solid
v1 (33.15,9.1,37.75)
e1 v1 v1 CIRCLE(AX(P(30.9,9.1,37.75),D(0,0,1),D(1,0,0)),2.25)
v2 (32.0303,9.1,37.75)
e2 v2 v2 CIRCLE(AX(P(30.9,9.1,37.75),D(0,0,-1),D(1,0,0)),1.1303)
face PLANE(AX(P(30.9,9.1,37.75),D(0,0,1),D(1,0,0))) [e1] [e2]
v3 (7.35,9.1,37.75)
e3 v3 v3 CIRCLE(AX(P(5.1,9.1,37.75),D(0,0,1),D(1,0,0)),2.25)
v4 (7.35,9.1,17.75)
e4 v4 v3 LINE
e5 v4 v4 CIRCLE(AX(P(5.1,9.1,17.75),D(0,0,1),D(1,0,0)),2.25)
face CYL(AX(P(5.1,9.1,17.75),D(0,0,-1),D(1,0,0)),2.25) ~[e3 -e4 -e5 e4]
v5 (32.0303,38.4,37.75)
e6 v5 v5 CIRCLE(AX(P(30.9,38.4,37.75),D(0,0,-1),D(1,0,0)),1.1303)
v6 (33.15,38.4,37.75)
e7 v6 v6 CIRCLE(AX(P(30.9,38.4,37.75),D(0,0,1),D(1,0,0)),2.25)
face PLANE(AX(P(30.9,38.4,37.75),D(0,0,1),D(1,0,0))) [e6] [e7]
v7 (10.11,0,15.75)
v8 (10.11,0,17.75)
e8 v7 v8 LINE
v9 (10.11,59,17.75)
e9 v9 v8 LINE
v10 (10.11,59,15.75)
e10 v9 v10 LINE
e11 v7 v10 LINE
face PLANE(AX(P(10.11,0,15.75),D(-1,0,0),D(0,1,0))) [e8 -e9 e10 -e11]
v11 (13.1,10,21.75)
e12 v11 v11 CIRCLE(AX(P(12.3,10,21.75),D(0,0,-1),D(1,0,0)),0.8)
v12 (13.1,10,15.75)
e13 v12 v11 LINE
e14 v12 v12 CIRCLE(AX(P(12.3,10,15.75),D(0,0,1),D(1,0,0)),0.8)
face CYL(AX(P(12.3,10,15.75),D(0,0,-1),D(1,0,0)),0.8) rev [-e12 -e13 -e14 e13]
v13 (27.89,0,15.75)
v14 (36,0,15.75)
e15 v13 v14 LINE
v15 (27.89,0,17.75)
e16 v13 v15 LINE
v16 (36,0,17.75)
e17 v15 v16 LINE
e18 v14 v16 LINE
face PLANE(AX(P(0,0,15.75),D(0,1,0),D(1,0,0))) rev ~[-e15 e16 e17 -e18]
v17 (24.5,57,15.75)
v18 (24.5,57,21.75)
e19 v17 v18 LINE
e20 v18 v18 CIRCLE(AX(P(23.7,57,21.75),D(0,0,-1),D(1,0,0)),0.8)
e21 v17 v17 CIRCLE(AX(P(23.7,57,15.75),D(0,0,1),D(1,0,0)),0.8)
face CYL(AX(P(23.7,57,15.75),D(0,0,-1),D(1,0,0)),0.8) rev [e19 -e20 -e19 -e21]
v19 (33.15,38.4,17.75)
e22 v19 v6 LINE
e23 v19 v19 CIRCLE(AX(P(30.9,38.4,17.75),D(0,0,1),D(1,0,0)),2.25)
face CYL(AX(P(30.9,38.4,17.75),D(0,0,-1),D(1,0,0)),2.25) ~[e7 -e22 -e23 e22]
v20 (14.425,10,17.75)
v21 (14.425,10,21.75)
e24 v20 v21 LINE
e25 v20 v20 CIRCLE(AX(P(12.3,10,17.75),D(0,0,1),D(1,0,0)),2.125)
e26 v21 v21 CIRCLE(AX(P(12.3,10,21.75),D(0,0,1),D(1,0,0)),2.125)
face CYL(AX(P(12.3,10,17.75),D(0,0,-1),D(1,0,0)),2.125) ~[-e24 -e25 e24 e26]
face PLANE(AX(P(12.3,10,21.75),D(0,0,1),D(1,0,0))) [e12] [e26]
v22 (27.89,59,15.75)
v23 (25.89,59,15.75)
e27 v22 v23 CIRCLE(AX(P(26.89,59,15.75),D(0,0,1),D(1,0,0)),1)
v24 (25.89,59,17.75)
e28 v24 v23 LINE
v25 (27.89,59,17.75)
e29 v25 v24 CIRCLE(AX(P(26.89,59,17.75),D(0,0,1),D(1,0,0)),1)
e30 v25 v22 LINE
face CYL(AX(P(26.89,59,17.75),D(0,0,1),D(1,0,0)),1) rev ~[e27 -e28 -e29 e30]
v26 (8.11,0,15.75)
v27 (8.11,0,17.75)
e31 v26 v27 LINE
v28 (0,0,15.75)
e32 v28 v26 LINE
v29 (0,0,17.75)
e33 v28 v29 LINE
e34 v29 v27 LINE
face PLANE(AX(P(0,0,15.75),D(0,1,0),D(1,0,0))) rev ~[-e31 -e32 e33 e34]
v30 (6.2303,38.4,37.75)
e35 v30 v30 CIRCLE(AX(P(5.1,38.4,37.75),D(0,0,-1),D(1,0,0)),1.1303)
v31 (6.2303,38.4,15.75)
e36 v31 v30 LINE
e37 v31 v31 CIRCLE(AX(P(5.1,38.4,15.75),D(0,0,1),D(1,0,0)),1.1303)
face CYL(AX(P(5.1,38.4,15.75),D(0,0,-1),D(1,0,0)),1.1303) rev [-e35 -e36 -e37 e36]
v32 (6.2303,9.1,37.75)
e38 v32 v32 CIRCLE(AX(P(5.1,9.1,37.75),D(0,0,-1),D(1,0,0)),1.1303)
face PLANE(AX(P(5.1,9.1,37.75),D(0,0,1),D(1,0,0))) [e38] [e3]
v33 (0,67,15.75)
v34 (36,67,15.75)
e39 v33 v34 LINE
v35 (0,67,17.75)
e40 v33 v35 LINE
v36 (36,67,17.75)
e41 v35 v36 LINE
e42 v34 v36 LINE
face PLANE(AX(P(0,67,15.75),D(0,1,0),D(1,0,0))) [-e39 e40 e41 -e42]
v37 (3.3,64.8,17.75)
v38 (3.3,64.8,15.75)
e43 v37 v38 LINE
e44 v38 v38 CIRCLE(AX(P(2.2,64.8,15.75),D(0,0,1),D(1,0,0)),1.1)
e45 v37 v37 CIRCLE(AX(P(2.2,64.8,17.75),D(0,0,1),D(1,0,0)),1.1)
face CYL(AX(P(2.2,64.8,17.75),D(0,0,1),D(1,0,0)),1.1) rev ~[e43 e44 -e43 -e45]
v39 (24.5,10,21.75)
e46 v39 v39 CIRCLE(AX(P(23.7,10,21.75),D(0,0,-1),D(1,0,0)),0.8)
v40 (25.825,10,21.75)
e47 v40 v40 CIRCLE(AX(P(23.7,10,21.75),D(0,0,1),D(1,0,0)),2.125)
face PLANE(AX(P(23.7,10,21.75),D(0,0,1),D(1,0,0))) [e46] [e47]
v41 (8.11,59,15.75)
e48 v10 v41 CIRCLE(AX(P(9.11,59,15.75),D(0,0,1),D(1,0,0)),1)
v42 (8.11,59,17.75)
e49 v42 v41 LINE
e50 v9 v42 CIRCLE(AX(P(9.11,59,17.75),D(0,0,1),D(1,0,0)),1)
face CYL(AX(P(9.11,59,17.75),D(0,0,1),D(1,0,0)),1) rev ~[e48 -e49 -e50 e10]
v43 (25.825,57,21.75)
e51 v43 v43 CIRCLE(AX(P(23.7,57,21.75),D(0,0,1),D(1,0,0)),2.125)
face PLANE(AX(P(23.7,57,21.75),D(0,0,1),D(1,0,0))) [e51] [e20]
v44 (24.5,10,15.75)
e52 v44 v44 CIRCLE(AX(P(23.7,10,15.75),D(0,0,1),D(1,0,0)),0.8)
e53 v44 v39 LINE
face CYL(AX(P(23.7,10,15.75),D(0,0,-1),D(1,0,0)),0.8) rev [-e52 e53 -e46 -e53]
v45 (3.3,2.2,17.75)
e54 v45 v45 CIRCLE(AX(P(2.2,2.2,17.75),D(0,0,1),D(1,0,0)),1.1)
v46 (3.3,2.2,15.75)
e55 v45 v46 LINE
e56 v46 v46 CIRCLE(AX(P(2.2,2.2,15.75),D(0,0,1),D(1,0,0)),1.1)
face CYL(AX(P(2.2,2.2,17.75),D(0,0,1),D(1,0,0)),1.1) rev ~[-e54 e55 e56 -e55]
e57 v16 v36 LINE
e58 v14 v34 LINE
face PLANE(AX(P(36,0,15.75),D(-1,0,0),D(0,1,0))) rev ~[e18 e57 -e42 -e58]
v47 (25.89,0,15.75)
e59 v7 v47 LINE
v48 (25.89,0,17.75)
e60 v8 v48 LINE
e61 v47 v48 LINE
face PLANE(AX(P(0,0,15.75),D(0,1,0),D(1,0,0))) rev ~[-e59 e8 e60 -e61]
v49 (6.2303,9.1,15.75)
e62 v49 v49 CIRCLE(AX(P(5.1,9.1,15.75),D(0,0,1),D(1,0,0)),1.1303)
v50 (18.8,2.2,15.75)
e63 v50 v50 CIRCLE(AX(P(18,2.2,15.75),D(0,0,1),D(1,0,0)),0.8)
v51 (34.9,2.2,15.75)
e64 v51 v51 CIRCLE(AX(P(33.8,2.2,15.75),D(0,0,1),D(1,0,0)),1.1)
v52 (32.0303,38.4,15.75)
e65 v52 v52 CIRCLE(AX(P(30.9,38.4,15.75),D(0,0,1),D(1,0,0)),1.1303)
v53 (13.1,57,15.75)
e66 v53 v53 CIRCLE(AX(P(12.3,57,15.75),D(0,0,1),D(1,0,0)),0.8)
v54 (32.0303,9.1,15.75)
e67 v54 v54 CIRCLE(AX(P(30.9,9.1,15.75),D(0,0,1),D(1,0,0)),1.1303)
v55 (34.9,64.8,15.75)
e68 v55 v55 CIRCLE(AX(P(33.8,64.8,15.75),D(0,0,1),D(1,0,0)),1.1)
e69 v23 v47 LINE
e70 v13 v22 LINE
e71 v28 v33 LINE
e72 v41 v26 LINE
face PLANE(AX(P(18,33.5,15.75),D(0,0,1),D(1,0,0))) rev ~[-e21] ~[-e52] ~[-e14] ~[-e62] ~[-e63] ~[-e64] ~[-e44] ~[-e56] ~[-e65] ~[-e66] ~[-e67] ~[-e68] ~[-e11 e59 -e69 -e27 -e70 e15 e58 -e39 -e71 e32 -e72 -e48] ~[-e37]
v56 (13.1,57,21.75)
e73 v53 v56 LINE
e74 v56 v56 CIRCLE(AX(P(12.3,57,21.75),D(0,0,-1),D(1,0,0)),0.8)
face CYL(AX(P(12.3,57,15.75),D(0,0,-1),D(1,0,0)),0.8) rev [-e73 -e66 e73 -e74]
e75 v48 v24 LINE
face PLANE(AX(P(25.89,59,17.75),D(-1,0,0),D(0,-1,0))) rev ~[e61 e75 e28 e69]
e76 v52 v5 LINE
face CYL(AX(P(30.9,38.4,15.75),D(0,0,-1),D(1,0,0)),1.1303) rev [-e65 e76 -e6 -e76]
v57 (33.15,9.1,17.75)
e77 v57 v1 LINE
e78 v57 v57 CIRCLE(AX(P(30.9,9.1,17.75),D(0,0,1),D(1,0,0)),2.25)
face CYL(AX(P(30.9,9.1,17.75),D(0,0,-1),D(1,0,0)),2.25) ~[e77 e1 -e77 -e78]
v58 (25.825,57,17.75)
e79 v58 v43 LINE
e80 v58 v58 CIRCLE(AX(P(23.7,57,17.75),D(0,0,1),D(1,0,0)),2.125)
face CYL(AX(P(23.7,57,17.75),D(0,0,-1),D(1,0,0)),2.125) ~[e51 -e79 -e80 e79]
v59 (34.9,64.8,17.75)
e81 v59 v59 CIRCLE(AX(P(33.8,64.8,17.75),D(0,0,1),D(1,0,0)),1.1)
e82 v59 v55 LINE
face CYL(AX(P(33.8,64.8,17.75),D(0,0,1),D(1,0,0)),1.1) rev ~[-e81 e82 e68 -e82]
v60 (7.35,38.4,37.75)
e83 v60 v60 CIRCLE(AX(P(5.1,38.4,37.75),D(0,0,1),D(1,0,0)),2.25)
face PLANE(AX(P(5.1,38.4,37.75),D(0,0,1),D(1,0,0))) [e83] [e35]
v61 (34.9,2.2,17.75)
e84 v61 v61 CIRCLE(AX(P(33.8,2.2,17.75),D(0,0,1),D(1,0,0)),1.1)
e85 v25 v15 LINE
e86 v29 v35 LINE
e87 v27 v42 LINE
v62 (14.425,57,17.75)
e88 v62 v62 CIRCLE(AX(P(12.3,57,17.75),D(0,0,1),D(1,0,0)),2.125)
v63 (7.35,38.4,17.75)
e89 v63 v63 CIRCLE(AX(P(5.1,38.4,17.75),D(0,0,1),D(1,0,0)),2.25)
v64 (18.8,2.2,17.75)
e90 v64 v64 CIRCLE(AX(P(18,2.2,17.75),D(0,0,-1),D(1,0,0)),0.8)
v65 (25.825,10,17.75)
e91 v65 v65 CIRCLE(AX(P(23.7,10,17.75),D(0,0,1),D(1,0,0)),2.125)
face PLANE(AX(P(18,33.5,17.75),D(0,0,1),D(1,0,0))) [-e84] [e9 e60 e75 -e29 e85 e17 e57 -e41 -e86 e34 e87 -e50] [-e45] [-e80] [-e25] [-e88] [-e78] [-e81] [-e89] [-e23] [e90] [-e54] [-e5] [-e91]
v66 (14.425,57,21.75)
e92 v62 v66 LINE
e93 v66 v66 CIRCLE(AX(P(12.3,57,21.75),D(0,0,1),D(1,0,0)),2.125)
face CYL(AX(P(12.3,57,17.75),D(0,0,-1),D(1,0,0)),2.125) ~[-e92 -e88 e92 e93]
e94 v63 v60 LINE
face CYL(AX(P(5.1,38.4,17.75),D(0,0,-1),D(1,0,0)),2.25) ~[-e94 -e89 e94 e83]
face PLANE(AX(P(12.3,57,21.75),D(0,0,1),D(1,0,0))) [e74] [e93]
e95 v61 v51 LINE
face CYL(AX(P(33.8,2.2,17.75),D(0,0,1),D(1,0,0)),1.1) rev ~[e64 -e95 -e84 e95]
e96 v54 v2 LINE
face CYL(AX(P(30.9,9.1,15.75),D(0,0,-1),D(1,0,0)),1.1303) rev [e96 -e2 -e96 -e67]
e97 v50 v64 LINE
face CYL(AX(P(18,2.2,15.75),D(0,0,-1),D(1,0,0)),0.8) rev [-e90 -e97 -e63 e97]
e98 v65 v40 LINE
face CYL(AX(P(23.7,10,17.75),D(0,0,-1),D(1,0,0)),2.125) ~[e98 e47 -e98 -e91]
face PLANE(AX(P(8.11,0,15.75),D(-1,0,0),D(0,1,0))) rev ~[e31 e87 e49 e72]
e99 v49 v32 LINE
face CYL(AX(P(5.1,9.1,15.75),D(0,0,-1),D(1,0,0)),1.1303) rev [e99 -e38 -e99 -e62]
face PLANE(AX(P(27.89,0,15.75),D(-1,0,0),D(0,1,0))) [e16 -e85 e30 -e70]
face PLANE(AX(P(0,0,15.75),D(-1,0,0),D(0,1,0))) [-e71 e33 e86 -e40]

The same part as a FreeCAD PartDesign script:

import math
import FreeCAD as App
import Part
import Sketcher
from FreeCAD import Vector


def add_polygon(sketch, points):
    """Adds a closed chain of lines whose ends are joined by coincident constraints."""
    first, n = sketch.GeometryCount, len(points)
    for a, b in zip(points, points[1:] + points[:1]):
        sketch.addGeometry(Part.LineSegment(App.Vector(*a, 0), App.Vector(*b, 0)), False)
    for i in range(n):
        sketch.addConstraint(Sketcher.Constraint("Coincident", first + i, 2, first + (i + 1) % n, 1))

doc = App.newDocument("Part")
body = doc.addObject("PartDesign::Body", "Body")

sketch1 = body.newObject("Sketcher::SketchObject", "Sketch")
sketch1.AttachmentSupport = (doc.getObject("XY_Plane"), [""])
sketch1.MapMode = "FlatFace"
add_polygon(sketch1, [(0, 67), (0, 0), (36, 0), (36, 67)])
sketch1.addConstraint([
    Sketcher.Constraint("Vertical", 0),
    Sketcher.Constraint("Horizontal", 1),
    Sketcher.Constraint("Vertical", 2),
    Sketcher.Constraint("Horizontal", 3),
    Sketcher.Constraint("Coincident", 0, 2, -1, 1),
    Sketcher.Constraint("DistanceX", 1, 1, 1, 2, 36.0),
    Sketcher.Constraint("DistanceY", 0, 2, 0, 1, 67.0),
])
pad1 = body.newObject("PartDesign::Pad", "Pad")
pad1.Profile = sketch1
pad1.Length = 2

sketch2 = body.newObject("Sketcher::SketchObject", "Sketch001")
sketch2.AttachmentSupport = (doc.getObject("XY_Plane"), [""])
sketch2.MapMode = "FlatFace"
sketch2.AttachmentOffset = App.Placement(Vector(0, 0, 2), App.Rotation())
sketch2.addGeometry([
    Part.Circle(Vector(12.3, 57, 0), Vector(0, 0, 1), 2.1),
    Part.Circle(Vector(23.7, 57, 0), Vector(0, 0, 1), 2.1),
    Part.Circle(Vector(23.7, 10, 0), Vector(0, 0, 1), 2.1),
    Part.Circle(Vector(12.3, 10, 0), Vector(0, 0, 1), 2.1),
], False)
sketch2.addConstraint([
    Sketcher.Constraint("Equal", 0, 1),
    Sketcher.Constraint("Equal", 1, 2),
    Sketcher.Constraint("Equal", 2, 3),
    Sketcher.Constraint("Horizontal", 0, 3, 1, 3),
    Sketcher.Constraint("Horizontal", 2, 3, 3, 3),
    Sketcher.Constraint("Vertical", 1, 3, 2, 3),
    Sketcher.Constraint("Vertical", 0, 3, 3, 3),
    Sketcher.Constraint("Diameter", 0, 4.25),
    Sketcher.Constraint("DistanceY", -1, 1, 0, 3, 57.0),
    Sketcher.Constraint("DistanceY", -1, 1, 2, 3, 10.0),
    Sketcher.Constraint("DistanceX", -1, 1, 0, 3, 12.3),
    Sketcher.Constraint("DistanceX", -1, 1, 1, 3, 23.7),
])
pad2 = body.newObject("PartDesign::Pad", "Pad001")
pad2.Profile = sketch2
pad2.Length = 4

sketch3 = body.newObject("Sketcher::SketchObject", "Sketch002")
sketch3.AttachmentSupport = (doc.getObject("XY_Plane"), [""])
sketch3.MapMode = "FlatFace"
sketch3.AttachmentOffset = App.Placement(Vector(0, 0, 2), App.Rotation())
sketch3.addGeometry([
    Part.Circle(Vector(2.2, 64.8, 0), Vector(0, 0, 1), 1.1),
    Part.Circle(Vector(33.8, 64.8, 0), Vector(0, 0, 1), 1.1),
    Part.Circle(Vector(33.8, 2.2, 0), Vector(0, 0, 1), 1.1),
    Part.Circle(Vector(2.2, 2.2, 0), Vector(0, 0, 1), 1.1),
    Part.ArcOfCircle(Part.Circle(Vector(9.1, 59, 0), Vector(0, 0, 1), 1), math.radians(0), math.radians(180)),
    Part.LineSegment(Vector(8.1, 59, 0), Vector(8.1, 8, 0)),
    Part.ArcOfCircle(Part.Circle(Vector(9.1, 8, 0), Vector(0, 0, 1), 1), math.radians(180), math.radians(360)),
    Part.LineSegment(Vector(10.1, 8, 0), Vector(10.1, 59, 0)),
    Part.ArcOfCircle(Part.Circle(Vector(26.9, 8, 0), Vector(0, 0, 1), 1), math.radians(180), math.radians(360)),
    Part.LineSegment(Vector(27.9, 8, 0), Vector(27.9, 59, 0)),
    Part.ArcOfCircle(Part.Circle(Vector(26.9, 59, 0), Vector(0, 0, 1), 1), math.radians(0), math.radians(180)),
    Part.LineSegment(Vector(25.9, 59, 0), Vector(25.9, 8, 0)),
], False)
sketch3.addConstraint([
    Sketcher.Constraint("Tangent", 4, 2, 5, 1),
    Sketcher.Constraint("Tangent", 5, 2, 6, 1),
    Sketcher.Constraint("Tangent", 6, 2, 7, 1),
    Sketcher.Constraint("Tangent", 7, 2, 4, 1),
    Sketcher.Constraint("Tangent", 8, 2, 9, 1),
    Sketcher.Constraint("Tangent", 9, 2, 10, 1),
    Sketcher.Constraint("Tangent", 10, 2, 11, 1),
    Sketcher.Constraint("Tangent", 11, 2, 8, 1),
    Sketcher.Constraint("Vertical", 5),
    Sketcher.Constraint("Vertical", 7),
    Sketcher.Constraint("Vertical", 9),
    Sketcher.Constraint("Vertical", 11),
    Sketcher.Constraint("Equal", 0, 1),
    Sketcher.Constraint("Equal", 1, 2),
    Sketcher.Constraint("Equal", 2, 3),
    Sketcher.Constraint("Equal", 6, 8),
    Sketcher.Constraint("Horizontal", 0, 3, 1, 3),
    Sketcher.Constraint("Horizontal", 2, 3, 3, 3),
    Sketcher.Constraint("Horizontal", 6, 3, 8, 3),
    Sketcher.Constraint("Horizontal", 4, 3, 10, 3),
    Sketcher.Constraint("Vertical", 1, 3, 2, 3),
    Sketcher.Constraint("Vertical", 0, 3, 3, 3),
    Sketcher.Constraint("Radius", 4, 1.0),
    Sketcher.Constraint("Diameter", 0, 2.2),
    Sketcher.Constraint("DistanceY", 5, 2, 5, 1, 51.0),
    Sketcher.Constraint("DistanceY", -1, 1, 4, 3, 59.0),
    Sketcher.Constraint("DistanceX", -1, 1, 0, 3, 2.2),
    Sketcher.Constraint("DistanceY", -1, 1, 0, 3, 64.8),
    Sketcher.Constraint("DistanceX", -1, 1, 1, 3, 33.8),
    Sketcher.Constraint("DistanceY", -1, 1, 2, 3, 2.2),
    Sketcher.Constraint("DistanceX", -1, 1, 4, 3, 9.11),
    Sketcher.Constraint("DistanceX", -1, 1, 8, 3, 26.89),
])
pocket1 = body.newObject("PartDesign::Pocket", "Pocket")
pocket1.Profile = sketch3
pocket1.Type = "ThroughAll"

sketch4 = body.newObject("Sketcher::SketchObject", "Sketch003")
sketch4.AttachmentSupport = (doc.getObject("XY_Plane"), [""])
sketch4.MapMode = "FlatFace"
sketch4.addGeometry([
    Part.Circle(Vector(12.3, 10, 0), Vector(0, 0, 1), 0.8),
    Part.Circle(Vector(23.7, 10, 0), Vector(0, 0, 1), 0.8),
    Part.Circle(Vector(12.3, 57, 0), Vector(0, 0, 1), 0.8),
    Part.Circle(Vector(23.7, 57, 0), Vector(0, 0, 1), 0.8),
], False)
sketch4.addConstraint([
    Sketcher.Constraint("Equal", 0, 1),
    Sketcher.Constraint("Equal", 1, 2),
    Sketcher.Constraint("Equal", 2, 3),
    Sketcher.Constraint("Horizontal", 0, 3, 1, 3),
    Sketcher.Constraint("Horizontal", 2, 3, 3, 3),
    Sketcher.Constraint("Vertical", 0, 3, 2, 3),
    Sketcher.Constraint("Vertical", 1, 3, 3, 3),
    Sketcher.Constraint("Diameter", 0, 1.6),
    Sketcher.Constraint("DistanceY", -1, 1, 0, 3, 10.0),
    Sketcher.Constraint("DistanceY", -1, 1, 2, 3, 57.0),
    Sketcher.Constraint("DistanceX", -1, 1, 0, 3, 12.3),
    Sketcher.Constraint("DistanceX", -1, 1, 1, 3, 23.7),
])
pocket2 = body.newObject("PartDesign::Pocket", "Pocket001")
pocket2.Profile = sketch4
pocket2.Type = "ThroughAll"
pocket2.Reversed = True

sketch5 = body.newObject("Sketcher::SketchObject", "Sketch004")
sketch5.AttachmentSupport = (doc.getObject("XY_Plane"), [""])
sketch5.MapMode = "FlatFace"
sketch5.AttachmentOffset = App.Placement(Vector(0, 0, 2), App.Rotation())
sketch5.addGeometry([
    Part.Circle(Vector(5.1, 9.1, 0), Vector(0, 0, 1), 2.2),
    Part.Circle(Vector(30.9, 9.1, 0), Vector(0, 0, 1), 2.2),
    Part.Circle(Vector(5.1, 38.4, 0), Vector(0, 0, 1), 2.2),
    Part.Circle(Vector(30.9, 38.4, 0), Vector(0, 0, 1), 2.2),
], False)
sketch5.addConstraint([
    Sketcher.Constraint("Equal", 0, 1),
    Sketcher.Constraint("Equal", 1, 2),
    Sketcher.Constraint("Equal", 2, 3),
    Sketcher.Constraint("Horizontal", 0, 3, 1, 3),
    Sketcher.Constraint("Horizontal", 2, 3, 3, 3),
    Sketcher.Constraint("Vertical", 0, 3, 2, 3),
    Sketcher.Constraint("Vertical", 1, 3, 3, 3),
    Sketcher.Constraint("Diameter", 0, 4.5),
    Sketcher.Constraint("DistanceX", -1, 1, 0, 3, 5.1),
    Sketcher.Constraint("DistanceY", -1, 1, 0, 3, 9.1),
    Sketcher.Constraint("DistanceX", -1, 1, 1, 3, 30.9),
    Sketcher.Constraint("DistanceY", -1, 1, 2, 3, 38.4),
])
pad3 = body.newObject("PartDesign::Pad", "Pad002")
pad3.Profile = sketch5
pad3.Length = 20

sketch6 = body.newObject("Sketcher::SketchObject", "Sketch005")
sketch6.AttachmentSupport = (doc.getObject("XY_Plane"), [""])
sketch6.MapMode = "FlatFace"
sketch6.addGeometry([
    Part.Circle(Vector(5.1, 38.4, 0), Vector(0, 0, 1), 1.1),
    Part.Circle(Vector(30.9, 38.4, 0), Vector(0, 0, 1), 1.1),
    Part.Circle(Vector(30.9, 9.1, 0), Vector(0, 0, 1), 1.1),
    Part.Circle(Vector(5.1, 9.1, 0), Vector(0, 0, 1), 1.1),
], False)
sketch6.addConstraint([
    Sketcher.Constraint("Equal", 0, 1),
    Sketcher.Constraint("Equal", 1, 2),
    Sketcher.Constraint("Equal", 2, 3),
    Sketcher.Constraint("Horizontal", 0, 3, 1, 3),
    Sketcher.Constraint("Horizontal", 2, 3, 3, 3),
    Sketcher.Constraint("Vertical", 1, 3, 2, 3),
    Sketcher.Constraint("Vertical", 0, 3, 3, 3),
    Sketcher.Constraint("Diameter", 0, 2.2606),
    Sketcher.Constraint("DistanceX", -1, 1, 0, 3, 5.1),
    Sketcher.Constraint("DistanceY", -1, 1, 0, 3, 38.4),
    Sketcher.Constraint("DistanceX", -1, 1, 1, 3, 30.9),
    Sketcher.Constraint("DistanceY", -1, 1, 2, 3, 9.1),
])
pocket3 = body.newObject("PartDesign::Pocket", "Pocket002")
pocket3.Profile = sketch6
pocket3.Type = "ThroughAll"
pocket3.Reversed = True

sketch7 = body.newObject("Sketcher::SketchObject", "Sketch006")
sketch7.AttachmentSupport = (doc.getObject("XY_Plane"), [""])
sketch7.MapMode = "FlatFace"
sketch7.addGeometry(Part.Circle(Vector(18, 2.2, 0), Vector(0, 0, 1), 0.8), False)
add_polygon(sketch7, [(8.1, 33.5), (8.1, 0), (10.1, 0), (10.1, 33.5)])
add_polygon(sketch7, [(25.9, 33.5), (25.9, 0), (27.9, 0), (27.9, 33.5)])
sketch7.addConstraint([
    Sketcher.Constraint("Vertical", 1),
    Sketcher.Constraint("Horizontal", 2),
    Sketcher.Constraint("Vertical", 3),
    Sketcher.Constraint("Horizontal", 4),
    Sketcher.Constraint("Vertical", 5),
    Sketcher.Constraint("Horizontal", 6),
    Sketcher.Constraint("Vertical", 7),
    Sketcher.Constraint("Horizontal", 8),
    Sketcher.Constraint("PointOnObject", 1, 2, -1),
    Sketcher.Constraint("PointOnObject", 5, 2, -1),
    Sketcher.Constraint("Horizontal", 4, 2, 7, 2),
    Sketcher.Constraint("Equal", 4, 6),
    Sketcher.Constraint("Diameter", 0, 1.6),
    Sketcher.Constraint("DistanceX", 2, 1, 2, 2, 2.0),
    Sketcher.Constraint("DistanceY", 1, 2, 1, 1, 33.5),
    Sketcher.Constraint("DistanceX", -1, 1, 0, 3, 18.0),
    Sketcher.Constraint("DistanceY", -1, 1, 0, 3, 2.2),
    Sketcher.Constraint("DistanceX", -1, 1, 1, 2, 8.11),
    Sketcher.Constraint("DistanceX", -1, 1, 5, 2, 25.89),
])
pocket4 = body.newObject("PartDesign::Pocket", "Pocket003")
pocket4.Profile = sketch7
pocket4.Type = "ThroughAll"
pocket4.Reversed = True
body2 = doc.addObject("PartDesign::Body", "Body001")
doc.recompute()

body.Placement = App.Placement(Vector(0, 0, 15.75), App.Rotation(Vector(0, 0, 1), 0))
boolean = body2.newObject("PartDesign::Boolean", "Boolean")
boolean.Type = "Fuse"
boolean.addObjects([body])

doc.recompute()
